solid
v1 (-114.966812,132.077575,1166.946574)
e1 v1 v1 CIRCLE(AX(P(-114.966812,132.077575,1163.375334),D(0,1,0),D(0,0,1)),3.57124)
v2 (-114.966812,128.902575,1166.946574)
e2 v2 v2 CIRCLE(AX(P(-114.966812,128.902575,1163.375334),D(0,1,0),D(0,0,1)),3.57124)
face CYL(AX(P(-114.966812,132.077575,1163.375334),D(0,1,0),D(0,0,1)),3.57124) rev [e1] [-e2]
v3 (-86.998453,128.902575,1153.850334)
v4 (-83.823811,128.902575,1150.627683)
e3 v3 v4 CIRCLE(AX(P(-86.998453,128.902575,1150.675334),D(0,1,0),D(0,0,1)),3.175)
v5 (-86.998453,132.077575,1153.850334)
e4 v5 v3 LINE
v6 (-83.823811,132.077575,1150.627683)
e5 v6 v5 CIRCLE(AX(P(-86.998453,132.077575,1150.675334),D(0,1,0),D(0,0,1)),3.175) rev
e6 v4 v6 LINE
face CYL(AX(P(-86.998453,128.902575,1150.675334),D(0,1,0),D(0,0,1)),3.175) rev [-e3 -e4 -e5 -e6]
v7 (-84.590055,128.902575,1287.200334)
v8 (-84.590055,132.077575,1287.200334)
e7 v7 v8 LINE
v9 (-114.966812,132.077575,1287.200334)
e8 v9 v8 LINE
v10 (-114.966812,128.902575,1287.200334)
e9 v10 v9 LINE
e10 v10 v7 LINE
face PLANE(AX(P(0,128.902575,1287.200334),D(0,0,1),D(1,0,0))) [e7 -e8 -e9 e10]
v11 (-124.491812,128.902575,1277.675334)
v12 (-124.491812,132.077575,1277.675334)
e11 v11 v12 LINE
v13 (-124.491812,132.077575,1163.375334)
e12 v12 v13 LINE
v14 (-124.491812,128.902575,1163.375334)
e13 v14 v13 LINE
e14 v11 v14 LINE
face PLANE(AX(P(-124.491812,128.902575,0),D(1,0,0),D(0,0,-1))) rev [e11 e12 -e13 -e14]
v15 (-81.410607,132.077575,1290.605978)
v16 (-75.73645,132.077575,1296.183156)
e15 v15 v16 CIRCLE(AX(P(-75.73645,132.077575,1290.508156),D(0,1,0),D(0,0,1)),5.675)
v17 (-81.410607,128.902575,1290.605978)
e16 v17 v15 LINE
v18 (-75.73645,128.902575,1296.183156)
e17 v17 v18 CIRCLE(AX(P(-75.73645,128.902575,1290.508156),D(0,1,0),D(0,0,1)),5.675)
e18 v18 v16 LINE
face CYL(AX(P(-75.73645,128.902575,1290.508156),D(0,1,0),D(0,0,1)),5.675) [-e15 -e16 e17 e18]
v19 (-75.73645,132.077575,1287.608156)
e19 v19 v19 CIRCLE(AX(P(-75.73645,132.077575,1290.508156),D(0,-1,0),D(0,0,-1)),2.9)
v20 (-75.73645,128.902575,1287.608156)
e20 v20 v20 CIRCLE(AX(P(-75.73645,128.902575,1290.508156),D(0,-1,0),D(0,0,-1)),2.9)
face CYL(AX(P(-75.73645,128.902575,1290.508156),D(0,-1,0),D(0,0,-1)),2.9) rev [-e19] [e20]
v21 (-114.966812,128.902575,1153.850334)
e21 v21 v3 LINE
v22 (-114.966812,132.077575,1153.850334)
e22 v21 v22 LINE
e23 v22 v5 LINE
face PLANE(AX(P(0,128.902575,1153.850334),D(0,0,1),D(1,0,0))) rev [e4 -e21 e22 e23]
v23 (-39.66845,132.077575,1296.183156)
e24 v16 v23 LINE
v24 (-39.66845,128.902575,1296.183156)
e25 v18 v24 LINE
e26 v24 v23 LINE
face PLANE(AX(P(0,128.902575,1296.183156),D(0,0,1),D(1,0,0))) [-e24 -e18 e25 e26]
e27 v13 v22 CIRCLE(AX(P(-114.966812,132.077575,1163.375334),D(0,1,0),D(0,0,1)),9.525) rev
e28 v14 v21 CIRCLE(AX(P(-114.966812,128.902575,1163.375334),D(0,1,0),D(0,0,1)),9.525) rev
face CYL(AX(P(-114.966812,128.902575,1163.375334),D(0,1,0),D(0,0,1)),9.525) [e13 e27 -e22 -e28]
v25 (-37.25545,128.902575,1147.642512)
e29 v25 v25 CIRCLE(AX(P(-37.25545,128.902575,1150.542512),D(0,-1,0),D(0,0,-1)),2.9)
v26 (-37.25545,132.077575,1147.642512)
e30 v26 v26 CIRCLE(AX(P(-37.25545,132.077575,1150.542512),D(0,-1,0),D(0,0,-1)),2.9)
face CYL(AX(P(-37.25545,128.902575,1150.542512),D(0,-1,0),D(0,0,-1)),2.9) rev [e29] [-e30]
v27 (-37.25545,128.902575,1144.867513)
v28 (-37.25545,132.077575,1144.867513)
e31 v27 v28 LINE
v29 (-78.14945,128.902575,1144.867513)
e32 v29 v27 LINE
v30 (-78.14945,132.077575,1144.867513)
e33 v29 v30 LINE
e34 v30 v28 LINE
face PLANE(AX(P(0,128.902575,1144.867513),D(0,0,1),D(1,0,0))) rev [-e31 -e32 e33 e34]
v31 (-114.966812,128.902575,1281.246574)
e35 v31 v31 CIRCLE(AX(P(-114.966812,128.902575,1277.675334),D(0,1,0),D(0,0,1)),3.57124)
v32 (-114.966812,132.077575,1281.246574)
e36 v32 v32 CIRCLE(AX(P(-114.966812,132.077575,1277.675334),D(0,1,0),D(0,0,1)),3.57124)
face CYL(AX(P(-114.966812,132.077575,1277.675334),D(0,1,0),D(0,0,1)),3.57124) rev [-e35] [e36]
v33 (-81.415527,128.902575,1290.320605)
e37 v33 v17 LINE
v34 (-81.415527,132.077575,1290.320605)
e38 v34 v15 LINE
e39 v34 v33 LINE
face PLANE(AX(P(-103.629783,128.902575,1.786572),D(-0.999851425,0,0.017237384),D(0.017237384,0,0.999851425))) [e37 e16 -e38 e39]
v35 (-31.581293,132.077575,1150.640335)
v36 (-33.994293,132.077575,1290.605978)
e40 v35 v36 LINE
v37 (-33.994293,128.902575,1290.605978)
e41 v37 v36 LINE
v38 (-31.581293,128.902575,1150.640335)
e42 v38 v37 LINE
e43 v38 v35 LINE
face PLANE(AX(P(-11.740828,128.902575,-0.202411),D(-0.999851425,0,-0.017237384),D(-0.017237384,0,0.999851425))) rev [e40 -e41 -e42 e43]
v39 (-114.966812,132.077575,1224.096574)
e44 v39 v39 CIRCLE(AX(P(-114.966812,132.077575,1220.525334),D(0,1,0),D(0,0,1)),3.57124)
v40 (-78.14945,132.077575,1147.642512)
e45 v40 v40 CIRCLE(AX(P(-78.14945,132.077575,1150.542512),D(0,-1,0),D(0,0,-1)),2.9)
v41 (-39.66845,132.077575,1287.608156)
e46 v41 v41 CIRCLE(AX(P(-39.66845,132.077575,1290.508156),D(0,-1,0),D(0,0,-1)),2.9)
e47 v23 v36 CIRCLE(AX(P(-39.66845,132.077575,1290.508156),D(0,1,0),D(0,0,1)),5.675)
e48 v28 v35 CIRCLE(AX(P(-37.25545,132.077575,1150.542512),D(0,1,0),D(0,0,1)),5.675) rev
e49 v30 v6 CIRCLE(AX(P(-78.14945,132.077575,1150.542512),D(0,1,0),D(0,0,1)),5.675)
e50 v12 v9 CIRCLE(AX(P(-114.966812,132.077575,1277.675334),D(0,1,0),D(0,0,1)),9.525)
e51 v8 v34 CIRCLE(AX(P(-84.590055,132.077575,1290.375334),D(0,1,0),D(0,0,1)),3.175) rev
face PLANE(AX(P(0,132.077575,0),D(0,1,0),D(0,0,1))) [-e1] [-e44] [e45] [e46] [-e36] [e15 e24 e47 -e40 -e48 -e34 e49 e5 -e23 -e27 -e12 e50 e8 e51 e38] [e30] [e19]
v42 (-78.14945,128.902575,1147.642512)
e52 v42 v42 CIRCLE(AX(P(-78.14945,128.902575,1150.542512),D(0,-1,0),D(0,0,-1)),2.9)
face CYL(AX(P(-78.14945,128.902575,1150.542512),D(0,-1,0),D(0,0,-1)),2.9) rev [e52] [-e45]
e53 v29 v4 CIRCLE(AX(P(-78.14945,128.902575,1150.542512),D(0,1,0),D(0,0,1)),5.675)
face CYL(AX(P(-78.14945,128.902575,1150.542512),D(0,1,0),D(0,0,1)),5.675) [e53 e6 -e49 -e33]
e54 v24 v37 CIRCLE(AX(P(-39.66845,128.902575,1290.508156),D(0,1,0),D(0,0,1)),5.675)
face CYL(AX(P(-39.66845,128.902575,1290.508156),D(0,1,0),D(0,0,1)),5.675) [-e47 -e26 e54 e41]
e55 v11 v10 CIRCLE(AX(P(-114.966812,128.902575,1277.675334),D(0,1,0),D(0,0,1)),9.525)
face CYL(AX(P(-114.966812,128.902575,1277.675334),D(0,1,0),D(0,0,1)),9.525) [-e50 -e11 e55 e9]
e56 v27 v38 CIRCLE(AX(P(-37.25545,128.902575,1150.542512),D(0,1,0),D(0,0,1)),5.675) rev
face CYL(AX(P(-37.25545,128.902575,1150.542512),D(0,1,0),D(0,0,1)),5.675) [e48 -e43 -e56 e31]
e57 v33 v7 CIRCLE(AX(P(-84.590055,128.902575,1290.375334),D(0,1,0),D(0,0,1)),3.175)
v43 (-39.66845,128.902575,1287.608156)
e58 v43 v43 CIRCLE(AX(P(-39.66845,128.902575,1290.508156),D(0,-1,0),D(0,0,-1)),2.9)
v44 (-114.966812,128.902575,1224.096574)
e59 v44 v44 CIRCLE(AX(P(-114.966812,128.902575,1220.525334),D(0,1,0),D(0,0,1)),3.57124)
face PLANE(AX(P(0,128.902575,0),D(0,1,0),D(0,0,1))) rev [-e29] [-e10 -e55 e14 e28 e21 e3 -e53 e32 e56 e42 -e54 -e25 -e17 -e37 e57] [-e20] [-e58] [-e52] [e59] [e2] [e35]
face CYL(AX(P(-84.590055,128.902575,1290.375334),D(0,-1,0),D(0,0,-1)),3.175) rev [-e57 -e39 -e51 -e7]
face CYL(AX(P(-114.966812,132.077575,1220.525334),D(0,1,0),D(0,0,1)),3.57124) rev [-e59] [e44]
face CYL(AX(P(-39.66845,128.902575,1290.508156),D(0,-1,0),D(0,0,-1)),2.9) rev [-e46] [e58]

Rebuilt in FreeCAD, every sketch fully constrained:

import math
import FreeCAD as App
import Part
import Sketcher
from FreeCAD import Vector
Q = App.Units.Quantity


def edges_at(feature, points):
    """Names of the edges that pass closest to the given points."""
    edges = feature.Shape.Edges
    near = lambda p: min(range(len(edges)), key=lambda i: edges[i].distToShape(Part.Vertex(*p))[0])
    return sorted({f"Edge{near(p) + 1}" for p in points})

doc = App.newDocument("Part")
body = doc.addObject("PartDesign::Body", "Body")

sketch1 = body.newObject("Sketcher::SketchObject", "Sketch")
sketch1.AttachmentSupport = (doc.getObject("XZ_Plane"), [""])
sketch1.MapMode = "FlatFace"
sketch1.AttachmentOffset = App.Placement(Vector(0, 0, -132.077575), App.Rotation())
sketch1.addGeometry([
    Part.LineSegment(Vector(-37.3, 1144.9, 0), Vector(-78.1, 1144.9, 0)),
    Part.ArcOfCircle(Part.Circle(Vector(-78.1, 1150.5, 0), Vector(0, 0, 1), 5.7), math.radians(179), math.radians(270)),
    Part.LineSegment(Vector(-83.8, 1150.6, 0), Vector(-83.8, 1153.9, 0)),
    Part.LineSegment(Vector(-83.8, 1153.9, 0), Vector(-115, 1153.9, 0)),
    Part.ArcOfCircle(Part.Circle(Vector(-115, 1163.4, 0), Vector(0, 0, 1), 9.5), math.radians(180), math.radians(270)),
    Part.LineSegment(Vector(-124.5, 1163.4, 0), Vector(-124.5, 1277.7, 0)),
    Part.ArcOfCircle(Part.Circle(Vector(-115, 1277.7, 0), Vector(0, 0, 1), 9.5), math.radians(90), math.radians(180)),
    Part.LineSegment(Vector(-115, 1287.2, 0), Vector(-81.5, 1287.2, 0)),
    Part.LineSegment(Vector(-81.5, 1287.2, 0), Vector(-81.4, 1290.6, 0)),
    Part.ArcOfCircle(Part.Circle(Vector(-75.7, 1290.5, 0), Vector(0, 0, 1), 5.7), math.radians(90), math.radians(179)),
    Part.LineSegment(Vector(-75.7, 1296.2, 0), Vector(-39.7, 1296.2, 0)),
    Part.ArcOfCircle(Part.Circle(Vector(-39.7, 1290.5, 0), Vector(0, 0, 1), 5.7), math.radians(1), math.radians(90)),
    Part.LineSegment(Vector(-34, 1290.6, 0), Vector(-31.6, 1150.6, 0)),
    Part.ArcOfCircle(Part.Circle(Vector(-37.3, 1150.5, 0), Vector(0, 0, 1), 5.7), math.radians(-90), math.radians(1)),
], False)
sketch1.addConstraint([
    Sketcher.Constraint("Tangent", 0, 2, 1, 2),
    Sketcher.Constraint("Tangent", 1, 1, 2, 1),
    Sketcher.Constraint("Coincident", 2, 2, 3, 1),
    Sketcher.Constraint("Tangent", 3, 2, 4, 2),
    Sketcher.Constraint("Tangent", 4, 1, 5, 1),
    Sketcher.Constraint("Tangent", 5, 2, 6, 2),
    Sketcher.Constraint("Tangent", 6, 1, 7, 1),
    Sketcher.Constraint("Coincident", 7, 2, 8, 1),
    Sketcher.Constraint("Tangent", 8, 2, 9, 2),
    Sketcher.Constraint("Tangent", 9, 1, 10, 1),
    Sketcher.Constraint("Tangent", 10, 2, 11, 2),
    Sketcher.Constraint("Tangent", 11, 1, 12, 1),
    Sketcher.Constraint("Tangent", 12, 2, 13, 2),
    Sketcher.Constraint("Tangent", 13, 1, 0, 1),
    Sketcher.Constraint("Horizontal", 0),
    Sketcher.Constraint("Horizontal", 3),
    Sketcher.Constraint("Vertical", 5),
    Sketcher.Constraint("Horizontal", 7),
    Sketcher.Constraint("Horizontal", 10),
    Sketcher.Constraint("Equal", 4, 6),
    Sketcher.Constraint("Equal", 1, 9),
    Sketcher.Constraint("Equal", 9, 11),
    Sketcher.Constraint("Equal", 11, 13),
    Sketcher.Constraint("Parallel", 2, 8),
    Sketcher.Constraint("Horizontal", 8, 2, 11, 1),
    Sketcher.Constraint("DistanceY", 5, 1, 5, 2, Q("4.5 in")),
    Sketcher.Constraint("Radius", 4, Q("0.375 in")),
    Sketcher.Constraint("DistanceX", 0, 2, 0, 1, Q("1.61 in")),
    Sketcher.Constraint("DistanceX", 10, 1, 10, 2, Q("1.42 in")),
    Sketcher.Constraint("Radius", 1, Q("5.675 mm")),
    Sketcher.Constraint("DistanceX", 1, 3, 9, 3, Q("0.095 in")),
    Sketcher.Constraint("DistanceY", 1, 1, 4, 3, Q("12.735 mm")),
    Sketcher.Constraint("Distance", 8, Q("3.40615 mm")),
    Sketcher.Constraint("DistanceX", 3, 2, 3, 1, Q("31.198546 mm")),
    Sketcher.Constraint("DistanceX", 1, 3, -1, 1, Q("78.14945 mm")),
    Sketcher.Constraint("DistanceY", -1, 1, 1, 3, Q("1150.542512 mm")),
])
pad1 = body.newObject("PartDesign::Pad", "Pad")
pad1.Profile = sketch1
pad1.Length = Q("0.125 in")

sketch2 = body.newObject("Sketcher::SketchObject", "Sketch001")
sketch2.AttachmentSupport = (doc.getObject("XZ_Plane"), [""])
sketch2.MapMode = "FlatFace"
sketch2.AttachmentOffset = App.Placement(Vector(0, 0, -128.902575), App.Rotation())
sketch2.addGeometry([
    Part.Circle(Vector(-39.7, 1290.5, 0), Vector(0, 0, 1), 2.9),
    Part.Circle(Vector(-75.7, 1290.5, 0), Vector(0, 0, 1), 2.9),
    Part.Circle(Vector(-37.3, 1150.5, 0), Vector(0, 0, 1), 2.9),
    Part.Circle(Vector(-78.1, 1150.5, 0), Vector(0, 0, 1), 2.9),
], False)
sketch2.addConstraint([
    Sketcher.Constraint("Equal", 0, 1),
    Sketcher.Constraint("Equal", 1, 2),
    Sketcher.Constraint("Equal", 2, 3),
    Sketcher.Constraint("Horizontal", 0, 3, 1, 3),
    Sketcher.Constraint("Horizontal", 2, 3, 3, 3),
    Sketcher.Constraint("Diameter", 0, Q("5.8 mm")),
    Sketcher.Constraint("DistanceX", 1, 3, 0, 3, Q("1.42 in")),
    Sketcher.Constraint("DistanceX", 3, 3, 2, 3, Q("1.61 in")),
    Sketcher.Constraint("DistanceX", 0, 3, 2, 3, Q("0.095 in")),
    Sketcher.Constraint("DistanceX", 0, 3, -1, 1, Q("39.66845 mm")),
    Sketcher.Constraint("DistanceY", -1, 1, 0, 3, Q("1290.508156 mm")),
    Sketcher.Constraint("DistanceY", -1, 1, 2, 3, Q("1150.542512 mm")),
])
doc.recompute()
hole = body.newObject("PartDesign::Hole", "Hole")
hole.Profile = sketch2
hole.ThreadType = "None"
hole.Diameter = 5.8
hole.DepthType = "ThroughAll"

sketch3 = body.newObject("Sketcher::SketchObject", "Sketch002")
sketch3.AttachmentSupport = (doc.getObject("XZ_Plane"), [""])
sketch3.MapMode = "FlatFace"
sketch3.AttachmentOffset = App.Placement(Vector(0, 0, -132.077575), App.Rotation())
sketch3.addGeometry([
    Part.Circle(Vector(-0.4, 1163.4, 0), Vector(0, 0, 1), 3.6),
    Part.Circle(Vector(-0.4, 1220.5, 0), Vector(0, 0, 1), 3.6),
    Part.Circle(Vector(-0.4, 1277.7, 0), Vector(0, 0, 1), 3.6),
    Part.Circle(Vector(-115, 1163.4, 0), Vector(0, 0, 1), 3.6),
    Part.Circle(Vector(-115, 1220.5, 0), Vector(0, 0, 1), 3.6),
    Part.Circle(Vector(-115, 1277.7, 0), Vector(0, 0, 1), 3.6),
], False)
sketch3.addConstraint([
    Sketcher.Constraint("Equal", 0, 1),
    Sketcher.Constraint("Equal", 1, 2),
    Sketcher.Constraint("Equal", 2, 3),
    Sketcher.Constraint("Equal", 3, 4),
    Sketcher.Constraint("Equal", 4, 5),
    Sketcher.Constraint("Horizontal", 0, 3, 3, 3),
    Sketcher.Constraint("Horizontal", 1, 3, 4, 3),
    Sketcher.Constraint("Horizontal", 2, 3, 5, 3),
    Sketcher.Constraint("Vertical", 0, 3, 1, 3),
    Sketcher.Constraint("Vertical", 1, 3, 2, 3),
    Sketcher.Constraint("Vertical", 3, 3, 4, 3),
    Sketcher.Constraint("Vertical", 4, 3, 5, 3),
    Sketcher.Constraint("Diameter", 0, Q("0.2812 in")),
    Sketcher.Constraint("DistanceY", 0, 3, 2, 3, Q("4.5 in")),
    Sketcher.Constraint("DistanceY", 0, 3, 1, 3, Q("2.25 in")),
    Sketcher.Constraint("DistanceX", 0, 3, -1, 1, Q("0.438088 mm")),
    Sketcher.Constraint("DistanceY", -1, 1, 0, 3, Q("1163.375334 mm")),
    Sketcher.Constraint("DistanceX", 3, 3, -1, 1, Q("114.966812 mm")),
])
doc.recompute()
hole2 = body.newObject("PartDesign::Hole", "Hole001")
hole2.Profile = sketch3
hole2.ThreadType = "None"
hole2.Diameter = Q("0.2812 in")
hole2.DepthType = "ThroughAll"
hole2.Reversed = True
doc.recompute()

fillet = body.newObject("PartDesign::Fillet", "Fillet")
fillet.Base = (hole2, edges_at(hole2, [(-81.469, 130.49, 1287.2), (-83.768, 130.49, 1153.85)]))
fillet.Radius = Q("0.125 in")

doc.recompute()
